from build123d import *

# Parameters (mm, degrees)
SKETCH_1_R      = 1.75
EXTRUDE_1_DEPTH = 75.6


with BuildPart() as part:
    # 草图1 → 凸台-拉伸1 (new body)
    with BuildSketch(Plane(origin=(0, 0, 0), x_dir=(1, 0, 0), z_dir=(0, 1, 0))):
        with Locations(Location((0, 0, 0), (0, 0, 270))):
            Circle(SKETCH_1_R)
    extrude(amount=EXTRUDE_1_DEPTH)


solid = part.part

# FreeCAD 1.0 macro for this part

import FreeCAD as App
import Part
import Sketcher
from FreeCAD import Vector
Q = App.Units.Quantity

doc = App.newDocument("Part")
body = doc.addObject("PartDesign::Body", "Body")

# Sketch on XZ plane
sketch1 = body.newObject("Sketcher::SketchObject", "Sketch")
sketch1.AttachmentSupport = (doc.getObject("XZ_Plane"), [""])
sketch1.MapMode = "FlatFace"
sketch1.addGeometry(Part.Circle(Vector(0, 0, 0), Vector(0, 0, 1), 1.8), False)
sketch1.addConstraint(Sketcher.Constraint("Coincident", 0, 3, -1, 1))
sketch1.addConstraint(Sketcher.Constraint("Diameter", 0, Q("3.5 mm")))
pad1 = body.newObject("PartDesign::Pad", "Pad")
pad1.Profile = sketch1
pad1.Length = 75.6
pad1.Reversed = True

doc.recompute()
